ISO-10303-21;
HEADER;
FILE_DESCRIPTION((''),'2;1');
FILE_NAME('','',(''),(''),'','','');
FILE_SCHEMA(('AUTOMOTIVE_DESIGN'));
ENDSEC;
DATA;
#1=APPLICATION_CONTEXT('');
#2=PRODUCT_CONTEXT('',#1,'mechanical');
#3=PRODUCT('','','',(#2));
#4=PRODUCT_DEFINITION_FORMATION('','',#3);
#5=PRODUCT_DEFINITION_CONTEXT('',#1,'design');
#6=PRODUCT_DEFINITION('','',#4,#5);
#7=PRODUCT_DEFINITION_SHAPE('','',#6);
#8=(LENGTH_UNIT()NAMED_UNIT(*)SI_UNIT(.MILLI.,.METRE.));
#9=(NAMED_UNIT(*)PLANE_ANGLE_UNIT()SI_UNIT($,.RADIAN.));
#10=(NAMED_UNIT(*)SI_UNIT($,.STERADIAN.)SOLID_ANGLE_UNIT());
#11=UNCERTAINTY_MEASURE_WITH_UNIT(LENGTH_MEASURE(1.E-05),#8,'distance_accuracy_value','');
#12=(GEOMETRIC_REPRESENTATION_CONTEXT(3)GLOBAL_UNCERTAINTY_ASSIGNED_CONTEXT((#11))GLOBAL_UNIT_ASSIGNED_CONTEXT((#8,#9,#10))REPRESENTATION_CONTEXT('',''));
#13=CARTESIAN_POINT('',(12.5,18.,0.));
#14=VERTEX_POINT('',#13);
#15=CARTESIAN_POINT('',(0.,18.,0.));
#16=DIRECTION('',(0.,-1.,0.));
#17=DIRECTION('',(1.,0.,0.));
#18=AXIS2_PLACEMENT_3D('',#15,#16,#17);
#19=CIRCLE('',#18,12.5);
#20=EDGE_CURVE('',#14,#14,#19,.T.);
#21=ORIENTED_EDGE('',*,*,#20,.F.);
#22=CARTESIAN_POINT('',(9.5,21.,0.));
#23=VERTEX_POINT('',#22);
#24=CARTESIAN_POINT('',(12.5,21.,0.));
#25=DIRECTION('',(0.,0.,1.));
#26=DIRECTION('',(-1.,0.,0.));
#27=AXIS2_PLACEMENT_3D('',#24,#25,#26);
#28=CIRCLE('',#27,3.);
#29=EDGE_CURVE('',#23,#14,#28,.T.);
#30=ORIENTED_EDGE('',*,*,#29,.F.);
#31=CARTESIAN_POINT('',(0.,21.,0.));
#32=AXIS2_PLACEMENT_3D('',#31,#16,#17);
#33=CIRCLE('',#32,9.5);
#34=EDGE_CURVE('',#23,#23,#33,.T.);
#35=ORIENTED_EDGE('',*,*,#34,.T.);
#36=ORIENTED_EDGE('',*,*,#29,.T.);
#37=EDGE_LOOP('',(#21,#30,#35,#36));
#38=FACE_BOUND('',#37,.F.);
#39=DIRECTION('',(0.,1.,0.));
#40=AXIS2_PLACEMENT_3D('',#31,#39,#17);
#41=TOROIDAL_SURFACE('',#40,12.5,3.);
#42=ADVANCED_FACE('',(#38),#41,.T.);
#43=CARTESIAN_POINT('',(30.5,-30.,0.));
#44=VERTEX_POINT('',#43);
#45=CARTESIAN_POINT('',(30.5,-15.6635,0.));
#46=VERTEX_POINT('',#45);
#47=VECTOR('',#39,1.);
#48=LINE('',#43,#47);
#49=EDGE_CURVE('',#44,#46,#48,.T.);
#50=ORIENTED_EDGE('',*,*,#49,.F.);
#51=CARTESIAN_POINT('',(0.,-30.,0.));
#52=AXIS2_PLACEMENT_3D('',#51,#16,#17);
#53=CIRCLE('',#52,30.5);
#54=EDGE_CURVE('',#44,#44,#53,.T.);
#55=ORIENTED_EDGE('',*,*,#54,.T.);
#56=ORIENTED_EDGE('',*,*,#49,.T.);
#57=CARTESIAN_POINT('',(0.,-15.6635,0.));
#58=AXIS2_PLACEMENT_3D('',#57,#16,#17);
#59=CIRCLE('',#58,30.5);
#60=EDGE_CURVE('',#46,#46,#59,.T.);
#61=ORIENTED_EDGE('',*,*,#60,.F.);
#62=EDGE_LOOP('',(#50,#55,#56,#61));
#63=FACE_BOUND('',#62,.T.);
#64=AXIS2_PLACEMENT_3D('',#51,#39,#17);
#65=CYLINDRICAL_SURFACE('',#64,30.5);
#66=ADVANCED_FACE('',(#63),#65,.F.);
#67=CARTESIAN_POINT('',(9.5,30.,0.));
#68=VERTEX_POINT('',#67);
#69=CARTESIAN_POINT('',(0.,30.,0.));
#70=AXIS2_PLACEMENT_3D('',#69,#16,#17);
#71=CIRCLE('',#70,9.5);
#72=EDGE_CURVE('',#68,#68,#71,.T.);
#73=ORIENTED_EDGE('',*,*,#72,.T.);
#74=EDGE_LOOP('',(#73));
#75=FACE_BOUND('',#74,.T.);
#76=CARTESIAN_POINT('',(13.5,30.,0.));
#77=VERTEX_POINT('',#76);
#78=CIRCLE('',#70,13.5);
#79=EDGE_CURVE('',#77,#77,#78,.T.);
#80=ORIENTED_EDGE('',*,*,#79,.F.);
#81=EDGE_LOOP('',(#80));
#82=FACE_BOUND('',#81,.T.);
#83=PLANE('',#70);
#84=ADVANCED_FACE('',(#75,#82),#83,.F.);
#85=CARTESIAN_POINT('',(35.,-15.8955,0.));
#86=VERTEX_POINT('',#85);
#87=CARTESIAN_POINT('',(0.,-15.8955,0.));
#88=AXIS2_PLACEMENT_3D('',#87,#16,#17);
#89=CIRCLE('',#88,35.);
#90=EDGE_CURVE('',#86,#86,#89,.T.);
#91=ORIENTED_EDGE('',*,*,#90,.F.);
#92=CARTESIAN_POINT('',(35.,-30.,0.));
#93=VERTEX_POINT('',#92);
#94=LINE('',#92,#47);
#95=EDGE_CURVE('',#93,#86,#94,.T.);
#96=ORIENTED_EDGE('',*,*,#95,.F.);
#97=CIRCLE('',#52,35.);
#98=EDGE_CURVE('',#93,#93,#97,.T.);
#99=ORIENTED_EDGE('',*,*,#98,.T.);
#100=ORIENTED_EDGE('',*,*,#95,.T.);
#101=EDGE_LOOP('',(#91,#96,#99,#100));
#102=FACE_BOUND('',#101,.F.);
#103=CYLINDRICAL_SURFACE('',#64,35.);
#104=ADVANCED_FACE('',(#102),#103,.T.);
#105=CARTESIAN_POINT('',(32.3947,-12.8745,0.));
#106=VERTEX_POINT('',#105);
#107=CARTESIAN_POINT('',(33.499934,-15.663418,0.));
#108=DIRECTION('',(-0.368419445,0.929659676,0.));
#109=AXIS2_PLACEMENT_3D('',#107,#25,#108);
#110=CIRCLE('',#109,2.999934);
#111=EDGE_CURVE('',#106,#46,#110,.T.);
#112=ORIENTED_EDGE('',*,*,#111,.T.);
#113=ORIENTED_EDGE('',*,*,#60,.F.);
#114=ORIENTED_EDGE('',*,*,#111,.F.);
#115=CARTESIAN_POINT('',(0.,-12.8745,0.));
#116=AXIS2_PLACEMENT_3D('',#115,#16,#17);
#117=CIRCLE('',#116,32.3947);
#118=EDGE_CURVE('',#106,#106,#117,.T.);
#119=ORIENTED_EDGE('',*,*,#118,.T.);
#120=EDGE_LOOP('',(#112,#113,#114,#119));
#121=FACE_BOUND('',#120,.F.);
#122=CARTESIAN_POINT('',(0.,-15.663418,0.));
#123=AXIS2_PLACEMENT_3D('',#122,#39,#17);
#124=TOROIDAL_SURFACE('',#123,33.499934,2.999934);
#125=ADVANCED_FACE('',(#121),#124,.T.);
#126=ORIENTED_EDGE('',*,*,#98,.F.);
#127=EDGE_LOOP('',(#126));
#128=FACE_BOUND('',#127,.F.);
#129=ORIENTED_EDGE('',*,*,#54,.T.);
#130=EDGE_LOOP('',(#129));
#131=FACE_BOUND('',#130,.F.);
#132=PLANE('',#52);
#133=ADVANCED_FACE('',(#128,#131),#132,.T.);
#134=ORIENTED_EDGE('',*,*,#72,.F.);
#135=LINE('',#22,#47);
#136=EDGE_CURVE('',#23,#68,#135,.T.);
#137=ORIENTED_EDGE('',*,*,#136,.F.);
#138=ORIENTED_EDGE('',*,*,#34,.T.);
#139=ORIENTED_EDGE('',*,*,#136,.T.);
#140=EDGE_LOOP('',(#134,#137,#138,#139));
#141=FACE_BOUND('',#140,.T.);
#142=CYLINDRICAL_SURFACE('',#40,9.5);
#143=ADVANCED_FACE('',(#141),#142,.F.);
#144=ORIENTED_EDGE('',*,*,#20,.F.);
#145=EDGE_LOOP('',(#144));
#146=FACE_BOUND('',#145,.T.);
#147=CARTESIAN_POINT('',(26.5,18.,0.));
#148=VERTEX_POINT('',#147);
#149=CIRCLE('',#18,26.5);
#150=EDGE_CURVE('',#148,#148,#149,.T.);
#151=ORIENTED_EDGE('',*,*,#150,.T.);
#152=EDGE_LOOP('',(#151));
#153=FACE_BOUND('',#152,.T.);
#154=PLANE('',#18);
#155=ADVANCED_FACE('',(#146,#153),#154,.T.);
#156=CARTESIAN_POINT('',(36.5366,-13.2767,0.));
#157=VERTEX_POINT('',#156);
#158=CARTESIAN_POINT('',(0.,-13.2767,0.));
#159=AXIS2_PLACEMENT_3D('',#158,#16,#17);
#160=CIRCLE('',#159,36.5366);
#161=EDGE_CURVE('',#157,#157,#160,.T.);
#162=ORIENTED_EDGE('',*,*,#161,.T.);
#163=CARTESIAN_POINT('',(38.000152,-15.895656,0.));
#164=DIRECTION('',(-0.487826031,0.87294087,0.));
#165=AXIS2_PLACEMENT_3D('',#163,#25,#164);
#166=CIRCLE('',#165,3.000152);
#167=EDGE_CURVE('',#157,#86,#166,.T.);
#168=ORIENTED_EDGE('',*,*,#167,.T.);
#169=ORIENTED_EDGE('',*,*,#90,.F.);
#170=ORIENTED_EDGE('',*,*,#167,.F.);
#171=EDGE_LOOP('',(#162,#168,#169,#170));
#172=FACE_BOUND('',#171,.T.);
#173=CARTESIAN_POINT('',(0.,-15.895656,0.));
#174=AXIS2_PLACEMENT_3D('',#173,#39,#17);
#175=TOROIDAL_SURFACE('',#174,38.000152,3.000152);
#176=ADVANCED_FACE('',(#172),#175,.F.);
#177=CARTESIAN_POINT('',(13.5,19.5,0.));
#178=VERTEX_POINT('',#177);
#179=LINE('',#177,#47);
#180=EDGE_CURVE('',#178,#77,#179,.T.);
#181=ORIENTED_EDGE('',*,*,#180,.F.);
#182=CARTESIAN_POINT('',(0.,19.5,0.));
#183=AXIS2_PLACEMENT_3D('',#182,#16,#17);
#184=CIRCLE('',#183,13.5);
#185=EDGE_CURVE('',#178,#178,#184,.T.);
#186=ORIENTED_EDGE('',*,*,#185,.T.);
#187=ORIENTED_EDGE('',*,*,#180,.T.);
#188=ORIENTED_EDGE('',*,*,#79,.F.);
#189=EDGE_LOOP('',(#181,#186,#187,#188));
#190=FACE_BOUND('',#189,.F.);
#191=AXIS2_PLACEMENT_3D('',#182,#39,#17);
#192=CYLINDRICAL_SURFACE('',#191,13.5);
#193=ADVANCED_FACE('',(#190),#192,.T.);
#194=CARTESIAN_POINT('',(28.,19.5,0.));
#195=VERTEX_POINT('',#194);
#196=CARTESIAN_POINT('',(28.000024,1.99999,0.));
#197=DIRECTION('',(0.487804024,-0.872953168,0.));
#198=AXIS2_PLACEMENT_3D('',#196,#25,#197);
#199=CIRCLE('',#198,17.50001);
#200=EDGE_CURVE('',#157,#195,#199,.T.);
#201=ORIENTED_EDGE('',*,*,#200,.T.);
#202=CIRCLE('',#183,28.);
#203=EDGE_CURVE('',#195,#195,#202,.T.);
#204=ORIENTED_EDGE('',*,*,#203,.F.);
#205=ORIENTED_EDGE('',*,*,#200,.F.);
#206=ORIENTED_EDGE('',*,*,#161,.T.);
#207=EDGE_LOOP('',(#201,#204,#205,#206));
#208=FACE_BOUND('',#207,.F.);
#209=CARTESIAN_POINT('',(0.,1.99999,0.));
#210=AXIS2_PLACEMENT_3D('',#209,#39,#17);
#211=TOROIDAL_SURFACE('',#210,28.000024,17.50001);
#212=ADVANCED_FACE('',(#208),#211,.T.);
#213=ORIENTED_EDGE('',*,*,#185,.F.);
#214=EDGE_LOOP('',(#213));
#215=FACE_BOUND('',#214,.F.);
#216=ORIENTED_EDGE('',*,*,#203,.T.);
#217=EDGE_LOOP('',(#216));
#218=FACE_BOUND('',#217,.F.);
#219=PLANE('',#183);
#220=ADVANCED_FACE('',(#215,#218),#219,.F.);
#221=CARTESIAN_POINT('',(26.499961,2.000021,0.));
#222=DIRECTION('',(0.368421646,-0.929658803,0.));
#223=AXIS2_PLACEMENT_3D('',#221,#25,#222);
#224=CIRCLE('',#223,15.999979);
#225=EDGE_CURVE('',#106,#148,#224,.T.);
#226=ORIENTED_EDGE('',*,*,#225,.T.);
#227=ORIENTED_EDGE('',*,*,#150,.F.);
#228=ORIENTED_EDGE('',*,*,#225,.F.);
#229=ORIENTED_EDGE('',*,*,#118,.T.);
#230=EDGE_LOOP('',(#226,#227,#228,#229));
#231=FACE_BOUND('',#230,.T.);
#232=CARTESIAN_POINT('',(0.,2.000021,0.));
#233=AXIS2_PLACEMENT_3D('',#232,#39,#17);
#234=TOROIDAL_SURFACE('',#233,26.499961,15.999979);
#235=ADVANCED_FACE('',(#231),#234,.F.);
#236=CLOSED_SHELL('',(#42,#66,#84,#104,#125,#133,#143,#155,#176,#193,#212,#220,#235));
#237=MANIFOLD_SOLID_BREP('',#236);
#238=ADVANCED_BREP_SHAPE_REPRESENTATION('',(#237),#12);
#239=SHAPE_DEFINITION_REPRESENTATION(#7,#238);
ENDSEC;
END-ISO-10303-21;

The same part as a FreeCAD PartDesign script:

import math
import FreeCAD as App
import Part
import Sketcher
Q = App.Units.Quantity

doc = App.newDocument("Part")
body = doc.addObject("PartDesign::Body", "Body")

# Sketch on XY plane
sketch1 = body.newObject("Sketcher::SketchObject", "Sketch")
sketch1.AttachmentSupport = (doc.getObject("XY_Plane"), [""])
sketch1.MapMode = "FlatFace"
sketch1.addGeometry([
    Part.LineSegment(App.Vector(30.5, -15.6635, 0), App.Vector(30.5, -30, 0)),  # 0
    Part.LineSegment(App.Vector(30.5, -30, 0), App.Vector(35, -30, 0)),  # 1
    Part.LineSegment(App.Vector(35, -30, 0), App.Vector(35, -15.8955, 0)),  # 2
    Part.ArcOfCircle(Part.Circle(App.Vector(38, -15.8955, 0), App.Vector(0, 0, 1), 2.999942), math.radians(119.196701), math.radians(180)),  # 3
    Part.ArcOfCircle(Part.Circle(App.Vector(28, 2, 0), App.Vector(0, 0, 1), 17.500031), math.radians(-60.803598), math.radians(90)),  # 4
    Part.LineSegment(App.Vector(28, 19.5, 0), App.Vector(13.5, 19.5, 0)),  # 5
    Part.LineSegment(App.Vector(13.5, 19.5, 0), App.Vector(13.5, 30, 0)),  # 6
    Part.LineSegment(App.Vector(13.5, 30, 0), App.Vector(9.5, 30, 0)),  # 7
    Part.LineSegment(App.Vector(9.5, 30, 0), App.Vector(9.5, 21, 0)),  # 8
    Part.ArcOfCircle(Part.Circle(App.Vector(12.5, 21, 0), App.Vector(0, 0, 1), 3), math.radians(180), math.radians(270)),  # 9
    Part.LineSegment(App.Vector(12.5, 18, 0), App.Vector(26.5, 18, 0)),  # 10
    Part.ArcOfCircle(Part.Circle(App.Vector(26.5, 2, 0), App.Vector(0, 0, 1), 15.999945), math.radians(-68.381791), math.radians(90)),  # 11
    Part.ArcOfCircle(Part.Circle(App.Vector(33.5, -15.6635, 0), App.Vector(0, 0, 1), 3.000035), math.radians(111.618766), math.radians(180)),  # 12
], False)
sketch1.addConstraint([
    Sketcher.Constraint("Coincident", 0, 2, 1, 1),
    Sketcher.Constraint("Coincident", 1, 2, 2, 1),
    Sketcher.Constraint("Tangent", 2, 2, 3, 2),
    Sketcher.Constraint("Tangent", 3, 1, 4, 1),
    Sketcher.Constraint("Tangent", 4, 2, 5, 1),
    Sketcher.Constraint("Coincident", 5, 2, 6, 1),
    Sketcher.Constraint("Coincident", 6, 2, 7, 1),
    Sketcher.Constraint("Coincident", 7, 2, 8, 1),
    Sketcher.Constraint("Tangent", 8, 2, 9, 1),
    Sketcher.Constraint("Tangent", 9, 2, 10, 1),
    Sketcher.Constraint("Tangent", 10, 2, 11, 2),
    Sketcher.Constraint("Tangent", 11, 1, 12, 1),
    Sketcher.Constraint("Tangent", 12, 2, 0, 1),
    Sketcher.Constraint("Vertical", 0),
    Sketcher.Constraint("Horizontal", 1),
    Sketcher.Constraint("Vertical", 2),
    Sketcher.Constraint("Horizontal", 5),
    Sketcher.Constraint("Vertical", 6),
    Sketcher.Constraint("Horizontal", 7),
    Sketcher.Constraint("Vertical", 8),
    Sketcher.Constraint("Horizontal", 10),
    Sketcher.Constraint("Equal", 3, 9),
    Sketcher.Constraint("Equal", 9, 12),
    Sketcher.Constraint("Horizontal", 4, 3, 11, 3),
    Sketcher.Constraint("Radius", 3, Q("3 mm")),
    Sketcher.Constraint("Radius", 11, Q("16 mm")),
    Sketcher.Constraint("DistanceY", 0, 2, 4, 3, Q("32 mm")),
    Sketcher.Constraint("Radius", 4, Q("17.5 mm")),
    Sketcher.Constraint("DistanceX", 11, 3, 4, 3, Q("1.5 mm")),
    Sketcher.Constraint("DistanceX", 12, 3, 1, 2, Q("1.5 mm")),
    Sketcher.Constraint("DistanceX", 7, 2, 7, 1, Q("4 mm")),
    Sketcher.Constraint("DistanceX", 10, 1, 10, 2, Q("14 mm")),
    Sketcher.Constraint("DistanceY", 8, 2, 8, 1, Q("9 mm")),
    Sketcher.Constraint("DistanceX", -1, 1, 3, 3, Q("38 mm")),
    Sketcher.Constraint("DistanceX", -1, 1, 4, 3, Q("28 mm")),
    Sketcher.Constraint("DistanceY", -1, 1, 4, 3, Q("2 mm")),
])
revolution = body.newObject("PartDesign::Revolution", "Revolution")
revolution.Profile = sketch1
revolution.ReferenceAxis = (sketch1, ["V_Axis"])
revolution.Angle = 360

doc.recompute()
